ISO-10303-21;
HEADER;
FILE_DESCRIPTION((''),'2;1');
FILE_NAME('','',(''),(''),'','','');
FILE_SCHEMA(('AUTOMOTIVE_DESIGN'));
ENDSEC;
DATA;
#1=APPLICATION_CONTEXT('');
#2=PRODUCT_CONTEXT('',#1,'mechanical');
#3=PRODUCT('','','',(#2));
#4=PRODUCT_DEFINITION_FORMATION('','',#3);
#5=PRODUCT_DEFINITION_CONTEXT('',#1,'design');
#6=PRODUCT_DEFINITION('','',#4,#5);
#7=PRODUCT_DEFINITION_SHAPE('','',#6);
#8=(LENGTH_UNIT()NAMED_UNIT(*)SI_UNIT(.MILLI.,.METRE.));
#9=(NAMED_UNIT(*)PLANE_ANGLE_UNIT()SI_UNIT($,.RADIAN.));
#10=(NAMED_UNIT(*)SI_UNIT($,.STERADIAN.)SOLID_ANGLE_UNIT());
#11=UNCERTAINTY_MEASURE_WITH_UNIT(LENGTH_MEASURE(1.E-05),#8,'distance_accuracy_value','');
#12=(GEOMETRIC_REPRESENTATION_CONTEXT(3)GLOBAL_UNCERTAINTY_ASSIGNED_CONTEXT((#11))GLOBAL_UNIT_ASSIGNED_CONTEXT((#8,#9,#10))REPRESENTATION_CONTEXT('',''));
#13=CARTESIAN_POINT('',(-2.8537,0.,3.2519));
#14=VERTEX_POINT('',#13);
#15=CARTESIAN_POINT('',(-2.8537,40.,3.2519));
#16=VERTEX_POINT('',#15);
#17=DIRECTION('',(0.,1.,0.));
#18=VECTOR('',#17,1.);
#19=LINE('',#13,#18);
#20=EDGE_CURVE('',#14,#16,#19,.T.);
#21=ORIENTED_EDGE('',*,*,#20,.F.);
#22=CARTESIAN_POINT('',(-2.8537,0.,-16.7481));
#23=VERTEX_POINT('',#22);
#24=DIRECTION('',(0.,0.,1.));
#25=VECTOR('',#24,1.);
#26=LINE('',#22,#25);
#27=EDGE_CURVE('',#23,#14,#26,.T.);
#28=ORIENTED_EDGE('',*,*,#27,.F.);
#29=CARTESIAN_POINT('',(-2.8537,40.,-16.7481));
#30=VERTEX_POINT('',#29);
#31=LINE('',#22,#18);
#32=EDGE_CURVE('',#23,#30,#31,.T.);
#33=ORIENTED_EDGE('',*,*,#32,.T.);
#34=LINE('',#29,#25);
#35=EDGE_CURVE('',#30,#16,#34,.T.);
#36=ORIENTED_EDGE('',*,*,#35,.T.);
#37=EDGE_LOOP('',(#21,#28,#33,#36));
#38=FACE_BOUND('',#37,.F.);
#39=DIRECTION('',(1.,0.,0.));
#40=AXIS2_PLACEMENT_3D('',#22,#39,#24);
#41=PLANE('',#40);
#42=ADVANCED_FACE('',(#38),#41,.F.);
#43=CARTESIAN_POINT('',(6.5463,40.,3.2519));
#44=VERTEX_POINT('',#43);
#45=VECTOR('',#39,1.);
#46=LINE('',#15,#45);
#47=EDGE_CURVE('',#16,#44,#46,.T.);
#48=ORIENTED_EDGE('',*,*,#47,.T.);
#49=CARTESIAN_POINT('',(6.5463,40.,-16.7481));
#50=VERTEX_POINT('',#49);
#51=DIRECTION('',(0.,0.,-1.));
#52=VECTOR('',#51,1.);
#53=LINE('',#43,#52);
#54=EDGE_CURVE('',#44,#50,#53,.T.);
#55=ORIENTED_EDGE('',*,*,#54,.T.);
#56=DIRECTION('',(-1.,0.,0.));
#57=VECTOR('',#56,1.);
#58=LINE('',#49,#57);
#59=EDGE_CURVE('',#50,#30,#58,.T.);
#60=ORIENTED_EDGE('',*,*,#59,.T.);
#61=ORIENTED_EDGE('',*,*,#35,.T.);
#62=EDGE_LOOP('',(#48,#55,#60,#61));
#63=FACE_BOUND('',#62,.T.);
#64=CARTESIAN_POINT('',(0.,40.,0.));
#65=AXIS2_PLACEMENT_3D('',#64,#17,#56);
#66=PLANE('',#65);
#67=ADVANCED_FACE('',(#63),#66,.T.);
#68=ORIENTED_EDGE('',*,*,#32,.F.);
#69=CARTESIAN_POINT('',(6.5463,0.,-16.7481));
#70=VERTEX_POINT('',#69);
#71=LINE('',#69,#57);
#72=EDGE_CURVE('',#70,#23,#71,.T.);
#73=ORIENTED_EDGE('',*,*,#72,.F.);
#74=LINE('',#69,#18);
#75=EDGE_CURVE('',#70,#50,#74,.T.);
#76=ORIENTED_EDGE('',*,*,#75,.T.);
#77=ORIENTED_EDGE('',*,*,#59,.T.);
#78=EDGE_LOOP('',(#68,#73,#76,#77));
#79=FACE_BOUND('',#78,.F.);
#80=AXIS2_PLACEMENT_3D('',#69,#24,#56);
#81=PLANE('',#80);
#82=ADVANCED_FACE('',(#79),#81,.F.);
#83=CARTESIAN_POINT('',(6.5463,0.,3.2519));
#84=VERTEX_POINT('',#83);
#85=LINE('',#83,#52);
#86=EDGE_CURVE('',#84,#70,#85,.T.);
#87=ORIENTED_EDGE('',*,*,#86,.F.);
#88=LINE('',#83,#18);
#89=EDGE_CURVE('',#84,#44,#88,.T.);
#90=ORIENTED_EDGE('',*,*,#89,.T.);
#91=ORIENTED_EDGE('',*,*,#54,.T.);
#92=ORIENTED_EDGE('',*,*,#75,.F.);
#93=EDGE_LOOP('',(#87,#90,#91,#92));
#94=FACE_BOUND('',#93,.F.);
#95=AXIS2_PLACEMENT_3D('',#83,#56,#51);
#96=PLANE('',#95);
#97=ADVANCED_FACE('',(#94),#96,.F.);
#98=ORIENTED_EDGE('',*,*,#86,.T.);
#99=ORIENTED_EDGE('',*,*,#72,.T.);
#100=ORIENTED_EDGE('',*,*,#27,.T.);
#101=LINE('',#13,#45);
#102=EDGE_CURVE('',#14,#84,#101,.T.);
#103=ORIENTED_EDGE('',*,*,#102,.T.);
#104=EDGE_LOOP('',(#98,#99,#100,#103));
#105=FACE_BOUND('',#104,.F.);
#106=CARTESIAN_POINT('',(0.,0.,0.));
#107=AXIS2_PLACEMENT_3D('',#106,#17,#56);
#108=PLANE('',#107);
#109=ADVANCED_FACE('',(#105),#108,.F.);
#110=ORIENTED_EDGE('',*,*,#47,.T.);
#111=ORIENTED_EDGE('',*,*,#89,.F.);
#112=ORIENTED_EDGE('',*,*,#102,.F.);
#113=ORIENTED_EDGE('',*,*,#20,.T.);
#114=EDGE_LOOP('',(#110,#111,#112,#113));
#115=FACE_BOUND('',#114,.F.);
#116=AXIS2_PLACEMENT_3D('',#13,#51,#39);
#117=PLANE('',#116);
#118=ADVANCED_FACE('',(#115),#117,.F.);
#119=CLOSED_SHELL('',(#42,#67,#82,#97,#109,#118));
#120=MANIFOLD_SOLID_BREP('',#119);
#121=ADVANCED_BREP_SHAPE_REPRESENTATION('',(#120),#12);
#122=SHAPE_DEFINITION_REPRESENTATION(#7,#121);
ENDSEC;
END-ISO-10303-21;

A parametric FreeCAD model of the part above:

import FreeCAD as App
import Part
import Sketcher

V = App.Vector


def add_polygon(sketch, points):
    """Adds a closed chain of lines whose ends are joined by coincident constraints."""
    first, n = sketch.GeometryCount, len(points)
    for a, b in zip(points, points[1:] + points[:1]):
        sketch.addGeometry(Part.LineSegment(App.Vector(*a, 0), App.Vector(*b, 0)), False)
    for i in range(n):
        sketch.addConstraint(Sketcher.Constraint("Coincident", first + i, 2, first + (i + 1) % n, 1))

doc = App.newDocument("Part")
body = doc.addObject("PartDesign::Body", "Body")

# Sketch on XZ plane
sketch1 = body.newObject("Sketcher::SketchObject", "Sketch")
sketch1.AttachmentSupport = (doc.getObject("XZ_Plane"), [""])
sketch1.MapMode = "FlatFace"
add_polygon(sketch1, [(-3, -17), (-3, 3), (7, 3), (7, -17)])  # lines 0-3
sketch1.addConstraint(Sketcher.Constraint("Vertical", 0))
sketch1.addConstraint(Sketcher.Constraint("Horizontal", 1))
sketch1.addConstraint(Sketcher.Constraint("Vertical", 2))
sketch1.addConstraint(Sketcher.Constraint("Horizontal", 3))
sketch1.addConstraint(Sketcher.Constraint("DistanceY", 0, 1, 0, 2, 20.0))
sketch1.addConstraint(Sketcher.Constraint("DistanceX", 1, 1, 1, 2, 9.4))
sketch1.addConstraint(Sketcher.Constraint("DistanceY", -1, 1, 0, 2, 3.252))
sketch1.addConstraint(Sketcher.Constraint("DistanceX", 0, 2, -1, 1, 2.8537))
pad1 = body.newObject("PartDesign::Pad", "Pad")
pad1.Profile = sketch1
pad1.Length = 40
pad1.Reversed = True

doc.recompute()
